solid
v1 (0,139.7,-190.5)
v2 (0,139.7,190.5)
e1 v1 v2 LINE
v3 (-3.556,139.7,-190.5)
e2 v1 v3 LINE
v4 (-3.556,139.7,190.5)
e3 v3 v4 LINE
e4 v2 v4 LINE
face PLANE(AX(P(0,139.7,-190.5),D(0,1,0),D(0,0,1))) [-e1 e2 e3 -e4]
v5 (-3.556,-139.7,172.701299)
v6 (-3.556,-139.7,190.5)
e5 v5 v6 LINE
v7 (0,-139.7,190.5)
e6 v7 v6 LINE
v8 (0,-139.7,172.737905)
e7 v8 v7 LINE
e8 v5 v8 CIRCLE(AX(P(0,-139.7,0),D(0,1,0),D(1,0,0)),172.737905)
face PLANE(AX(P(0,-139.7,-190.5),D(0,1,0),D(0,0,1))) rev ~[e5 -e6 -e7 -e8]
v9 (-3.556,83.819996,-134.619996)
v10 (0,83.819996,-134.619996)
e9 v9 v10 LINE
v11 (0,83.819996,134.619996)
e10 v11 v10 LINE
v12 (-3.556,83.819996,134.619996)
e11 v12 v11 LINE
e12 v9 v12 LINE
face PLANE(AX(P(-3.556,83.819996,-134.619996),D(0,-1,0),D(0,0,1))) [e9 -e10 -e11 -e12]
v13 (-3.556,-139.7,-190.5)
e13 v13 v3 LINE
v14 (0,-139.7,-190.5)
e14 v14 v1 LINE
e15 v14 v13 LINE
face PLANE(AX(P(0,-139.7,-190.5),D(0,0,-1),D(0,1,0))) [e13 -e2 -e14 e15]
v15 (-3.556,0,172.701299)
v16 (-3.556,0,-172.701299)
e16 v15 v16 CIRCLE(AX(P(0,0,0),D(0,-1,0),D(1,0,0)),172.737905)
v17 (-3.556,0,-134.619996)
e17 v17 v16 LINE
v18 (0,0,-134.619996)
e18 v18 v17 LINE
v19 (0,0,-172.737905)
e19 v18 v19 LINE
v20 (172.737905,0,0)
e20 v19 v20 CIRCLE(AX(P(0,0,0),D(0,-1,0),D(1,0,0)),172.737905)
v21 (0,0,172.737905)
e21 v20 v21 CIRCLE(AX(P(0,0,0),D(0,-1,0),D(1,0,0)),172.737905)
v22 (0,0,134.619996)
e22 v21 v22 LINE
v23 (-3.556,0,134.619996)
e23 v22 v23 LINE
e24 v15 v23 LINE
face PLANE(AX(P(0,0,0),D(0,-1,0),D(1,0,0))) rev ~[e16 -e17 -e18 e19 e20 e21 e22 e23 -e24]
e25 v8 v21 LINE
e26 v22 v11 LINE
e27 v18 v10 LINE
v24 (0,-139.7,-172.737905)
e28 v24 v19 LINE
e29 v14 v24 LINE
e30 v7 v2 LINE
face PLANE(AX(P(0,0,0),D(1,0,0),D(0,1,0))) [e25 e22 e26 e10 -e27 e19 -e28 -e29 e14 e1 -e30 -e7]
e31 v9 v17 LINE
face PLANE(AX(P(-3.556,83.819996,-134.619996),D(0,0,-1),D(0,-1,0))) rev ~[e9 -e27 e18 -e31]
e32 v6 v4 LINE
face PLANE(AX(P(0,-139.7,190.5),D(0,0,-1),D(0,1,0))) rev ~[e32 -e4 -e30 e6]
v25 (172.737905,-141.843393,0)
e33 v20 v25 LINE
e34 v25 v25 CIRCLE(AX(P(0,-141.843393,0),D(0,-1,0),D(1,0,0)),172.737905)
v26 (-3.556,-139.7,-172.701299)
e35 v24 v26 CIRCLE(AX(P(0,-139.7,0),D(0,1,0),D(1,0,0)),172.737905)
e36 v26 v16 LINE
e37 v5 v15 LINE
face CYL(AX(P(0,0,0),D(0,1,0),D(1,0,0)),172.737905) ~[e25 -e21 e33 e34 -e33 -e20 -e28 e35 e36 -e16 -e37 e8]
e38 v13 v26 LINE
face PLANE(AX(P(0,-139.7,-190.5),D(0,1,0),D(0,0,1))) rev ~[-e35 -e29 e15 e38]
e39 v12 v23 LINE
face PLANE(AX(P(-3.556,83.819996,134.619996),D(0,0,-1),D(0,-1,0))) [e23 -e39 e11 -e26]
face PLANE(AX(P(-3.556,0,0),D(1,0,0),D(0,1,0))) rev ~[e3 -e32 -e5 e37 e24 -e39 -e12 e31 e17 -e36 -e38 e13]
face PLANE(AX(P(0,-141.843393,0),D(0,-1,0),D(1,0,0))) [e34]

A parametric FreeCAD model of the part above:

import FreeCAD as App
import Part
import Sketcher
from FreeCAD import Vector
Q = App.Units.Quantity

doc = App.newDocument("Part")
body = doc.addObject("PartDesign::Body", "Body")

# Sketch on YZ plane
sketch1 = body.newObject("Sketcher::SketchObject", "Sketch")
sketch1.AttachmentSupport = (doc.getObject("YZ_Plane"), [""])
sketch1.MapMode = "FlatFace"
sketch1.addGeometry([
    Part.LineSegment(Vector(-140, 190, 0), Vector(-140, -190, 0)),
    Part.LineSegment(Vector(-140, -190, 0), Vector(140, -190, 0)),
    Part.LineSegment(Vector(140, -190, 0), Vector(140, 190, 0)),
    Part.LineSegment(Vector(140, 190, 0), Vector(-140, 190, 0)),
], False)
sketch1.addConstraint([
    Sketcher.Constraint("Coincident", 0, 2, 1, 1),
    Sketcher.Constraint("Coincident", 1, 2, 2, 1),
    Sketcher.Constraint("Coincident", 2, 2, 3, 1),
    Sketcher.Constraint("Coincident", 3, 2, 0, 1),
    Sketcher.Constraint("Vertical", 0),
    Sketcher.Constraint("Horizontal", 1),
    Sketcher.Constraint("Vertical", 2),
    Sketcher.Constraint("Horizontal", 3),
    Sketcher.Constraint("Symmetric", 0, 2, 2, 2, -1, 1),
    Sketcher.Constraint("DistanceX", 1, 1, 1, 2, Q("11 in")),
    Sketcher.Constraint("DistanceY", 0, 2, 0, 1, Q("15 in")),
])
pad1 = body.newObject("PartDesign::Pad", "Pad")
pad1.Profile = sketch1
pad1.Length = Q("0.14 in")
pad1.Reversed = True

# Sketch on YZ plane
sketch2 = body.newObject("Sketcher::SketchObject", "Sketch001")
sketch2.AttachmentSupport = (doc.getObject("YZ_Plane"), [""])
sketch2.MapMode = "FlatFace"
sketch2.AttachmentOffset = App.Placement(Vector(0, 0, -0.14 * 25.4), App.Rotation())
sketch2.addGeometry([
    Part.LineSegment(Vector(84, 135, 0), Vector(84, -135, 0)),
    Part.LineSegment(Vector(84, -135, 0), Vector(-84, -135, 0)),
    Part.LineSegment(Vector(-84, -135, 0), Vector(-84, 135, 0)),
    Part.LineSegment(Vector(-84, 135, 0), Vector(84, 135, 0)),
], False)
sketch2.addConstraint([
    Sketcher.Constraint("Coincident", 0, 2, 1, 1),
    Sketcher.Constraint("Coincident", 1, 2, 2, 1),
    Sketcher.Constraint("Coincident", 2, 2, 3, 1),
    Sketcher.Constraint("Coincident", 3, 2, 0, 1),
    Sketcher.Constraint("Vertical", 0),
    Sketcher.Constraint("Horizontal", 1),
    Sketcher.Constraint("Vertical", 2),
    Sketcher.Constraint("Horizontal", 3),
    Sketcher.Constraint("Symmetric", 0, 2, 2, 2, -1, 1),
    Sketcher.Constraint("DistanceX", -1, 1, 0, 2, Q("3.2999998 in")),
    Sketcher.Constraint("DistanceY", 0, 2, -1, 1, Q("5.2999998 in")),
])
pocket1 = body.newObject("PartDesign::Pocket", "Pocket")
pocket1.Profile = sketch2
pocket1.Length = Q("2.22 in")
pocket1.Reversed = True

# Sketch on XZ plane
sketch3 = body.newObject("Sketcher::SketchObject", "Sketch002")
sketch3.AttachmentSupport = (doc.getObject("XZ_Plane"), [""])
sketch3.MapMode = "FlatFace"
sketch3.addGeometry(Part.Circle(Vector(0, 0, 0), Vector(0, 0, 1), 173), False)
sketch3.addConstraint([
    Sketcher.Constraint("Coincident", 0, 3, -1, 1),
    Sketcher.Constraint("Diameter", 0, Q("345.47581 mm")),
])
pad2 = body.newObject("PartDesign::Pad", "Pad001")
pad2.Profile = sketch3
pad2.Length = 141.843393

doc.recompute()
